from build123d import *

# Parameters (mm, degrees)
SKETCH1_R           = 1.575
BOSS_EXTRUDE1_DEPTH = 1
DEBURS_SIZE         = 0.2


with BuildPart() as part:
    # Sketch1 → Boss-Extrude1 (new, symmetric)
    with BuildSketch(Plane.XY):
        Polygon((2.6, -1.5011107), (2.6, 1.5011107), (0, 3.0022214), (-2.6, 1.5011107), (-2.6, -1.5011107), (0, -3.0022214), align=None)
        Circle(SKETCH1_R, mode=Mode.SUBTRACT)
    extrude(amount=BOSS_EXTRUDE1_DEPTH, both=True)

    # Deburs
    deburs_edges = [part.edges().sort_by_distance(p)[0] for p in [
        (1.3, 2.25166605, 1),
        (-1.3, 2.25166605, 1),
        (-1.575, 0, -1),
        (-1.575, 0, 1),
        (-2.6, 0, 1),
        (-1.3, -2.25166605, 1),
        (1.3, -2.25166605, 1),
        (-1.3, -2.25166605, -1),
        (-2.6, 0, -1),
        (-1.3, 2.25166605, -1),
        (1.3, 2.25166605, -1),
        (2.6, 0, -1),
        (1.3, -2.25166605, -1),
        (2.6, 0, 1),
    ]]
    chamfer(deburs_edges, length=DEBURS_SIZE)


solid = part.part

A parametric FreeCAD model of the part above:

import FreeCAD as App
import Part
import Sketcher

V = App.Vector
Q = App.Units.Quantity


def edges_at(feature, points):
    """Names of the edges that pass closest to the given points."""
    edges = feature.Shape.Edges
    near = lambda p: min(range(len(edges)), key=lambda i: edges[i].distToShape(Part.Vertex(*p))[0])
    return sorted({f"Edge{near(p) + 1}" for p in points})


def add_polygon(sketch, points):
    """Adds a closed chain of lines whose ends are joined by coincident constraints."""
    first, n = sketch.GeometryCount, len(points)
    for a, b in zip(points, points[1:] + points[:1]):
        sketch.addGeometry(Part.LineSegment(App.Vector(*a, 0), App.Vector(*b, 0)), False)
    for i in range(n):
        sketch.addConstraint(Sketcher.Constraint("Coincident", first + i, 2, first + (i + 1) % n, 1))

doc = App.newDocument("Part")
params = doc.addObject("Spreadsheet::Sheet", "Params")
for row, (alias, value) in enumerate([
    ("sketch1_diameter", "3.15 mm"),
    ("pad1_length", "2 mm"),
    ("chamfer_size", "0.2 mm"),
], start=1):
    params.set(f"A{row}", alias)
    params.set(f"B{row}", "=" + value)
    params.setAlias(f"B{row}", alias)

body = doc.addObject("PartDesign::Body", "Body")

# Sketch on XY plane
sketch1 = doc.addObject("Sketcher::SketchObject", "Sketch")
body.addObject(sketch1)
sketch1.AttachmentSupport = (doc.XY_Plane, [""])
sketch1.MapMode = "FlatFace"
add_polygon(sketch1, [(2.6, -1.5), (2.6, 1.5), (0, 3), (-2.6, 1.5), (-2.6, -1.5), (0, -3)])  # lines 0-5
sketch1.addGeometry(Part.Circle(V(0, 0, 0), V(0, 0, 1), 1.6), False)  # 6
sketch1.addConstraint([
    Sketcher.Constraint("Vertical", 0),
    Sketcher.Constraint("Vertical", 3),
    Sketcher.Constraint("Coincident", 6, 3, -1, 1),
    Sketcher.Constraint("Symmetric", 0, 2, 3, 2, -1, 1),
    Sketcher.Constraint("Symmetric", 1, 2, 4, 2, -1, 1),
    Sketcher.Constraint("PointOnObject", 1, 2, -2),
    Sketcher.Constraint("Parallel", 2, 5),
    Sketcher.Constraint("Horizontal", 0, 2, 2, 2),
    Sketcher.Constraint("Diameter", 6, 3.15),
    Sketcher.Constraint("Angle", 1, Q("150 deg")),
    Sketcher.Constraint("DistanceX", -1, 1, 0, 2, 2.6),
    Sketcher.Constraint("DistanceY", 0, 1, 0, 2, 3.002221),
])
sketch1.setExpression("Constraints[14]", "Params.sketch1_diameter")
pad1 = doc.addObject("PartDesign::Pad", "Pad")
body.addObject(pad1)
pad1.Profile = sketch1
pad1.setExpression("Length", "Params.pad1_length")
pad1.Midplane = True
doc.recompute()

chamfer = doc.addObject("PartDesign::Chamfer", "Chamfer")
body.addObject(chamfer)
chamfer.Base = (pad1, edges_at(pad1, [
    (1.3, 2.252, 1),
    (-1.3, 2.252, 1),
    (-1.575, 0, -1),
    (-1.575, 0, 1),
    (-2.6, 0, 1),
    (-1.3, -2.252, 1),
    (1.3, -2.252, 1),
    (-1.3, -2.252, -1),
    (-2.6, 0, -1),
    (-1.3, 2.252, -1),
    (1.3, 2.252, -1),
    (2.6, 0, -1),
    (1.3, -2.252, -1),
    (2.6, 0, 1),
]))
chamfer.setExpression("Size", "Params.chamfer_size")

doc.recompute()
